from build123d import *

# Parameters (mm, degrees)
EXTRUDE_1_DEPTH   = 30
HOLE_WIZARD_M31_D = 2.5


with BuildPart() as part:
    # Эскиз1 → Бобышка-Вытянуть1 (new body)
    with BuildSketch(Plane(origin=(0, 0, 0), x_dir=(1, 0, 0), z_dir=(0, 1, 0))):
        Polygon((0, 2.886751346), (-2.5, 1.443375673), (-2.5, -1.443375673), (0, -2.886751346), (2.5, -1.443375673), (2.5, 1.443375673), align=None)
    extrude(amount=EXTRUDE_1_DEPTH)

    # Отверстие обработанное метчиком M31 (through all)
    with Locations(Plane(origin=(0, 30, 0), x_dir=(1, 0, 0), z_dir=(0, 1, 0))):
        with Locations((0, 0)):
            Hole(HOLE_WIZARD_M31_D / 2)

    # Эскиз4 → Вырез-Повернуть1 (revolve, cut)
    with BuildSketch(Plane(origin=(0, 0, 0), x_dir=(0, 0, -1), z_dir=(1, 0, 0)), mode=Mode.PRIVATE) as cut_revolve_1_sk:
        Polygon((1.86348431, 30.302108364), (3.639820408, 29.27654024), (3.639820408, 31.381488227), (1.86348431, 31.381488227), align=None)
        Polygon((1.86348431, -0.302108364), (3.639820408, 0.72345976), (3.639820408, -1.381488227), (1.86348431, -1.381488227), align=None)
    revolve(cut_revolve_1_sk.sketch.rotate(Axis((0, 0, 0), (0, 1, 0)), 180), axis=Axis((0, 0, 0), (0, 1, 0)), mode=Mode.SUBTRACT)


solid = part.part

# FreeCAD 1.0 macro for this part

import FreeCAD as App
import Part
import Sketcher
Q = App.Units.Quantity

doc = App.newDocument("Part")
body = doc.addObject("PartDesign::Body", "Body")

# Sketch on XZ plane
sketch1 = body.newObject("Sketcher::SketchObject", "Sketch")
sketch1.AttachmentSupport = (doc.getObject("XZ_Plane"), [""])
sketch1.MapMode = "FlatFace"
sketch1.addGeometry(Part.LineSegment(App.Vector(0, -2.9, 0), App.Vector(-2.5, -1.4, 0)), False)
sketch1.addGeometry(Part.LineSegment(App.Vector(-2.5, -1.4, 0), App.Vector(-2.5, 1.4, 0)), False)
sketch1.addGeometry(Part.LineSegment(App.Vector(-2.5, 1.4, 0), App.Vector(0, 2.9, 0)), False)
sketch1.addGeometry(Part.LineSegment(App.Vector(0, 2.9, 0), App.Vector(2.5, 1.4, 0)), False)
sketch1.addGeometry(Part.LineSegment(App.Vector(2.5, 1.4, 0), App.Vector(2.5, -1.4, 0)), False)
sketch1.addGeometry(Part.LineSegment(App.Vector(2.5, -1.4, 0), App.Vector(0, -2.9, 0)), False)
sketch1.addConstraint(Sketcher.Constraint("Coincident", 0, 2, 1, 1))
sketch1.addConstraint(Sketcher.Constraint("Coincident", 1, 2, 2, 1))
sketch1.addConstraint(Sketcher.Constraint("Coincident", 2, 2, 3, 1))
sketch1.addConstraint(Sketcher.Constraint("Coincident", 3, 2, 4, 1))
sketch1.addConstraint(Sketcher.Constraint("Coincident", 4, 2, 5, 1))
sketch1.addConstraint(Sketcher.Constraint("Coincident", 5, 2, 0, 1))
sketch1.addConstraint(Sketcher.Constraint("Vertical", 1))
sketch1.addConstraint(Sketcher.Constraint("Vertical", 4))
sketch1.addConstraint(Sketcher.Constraint("Symmetric", 0, 2, 3, 2, -1, 1))
sketch1.addConstraint(Sketcher.Constraint("Symmetric", 2, 2, 5, 2, -1, 1))
sketch1.addConstraint(Sketcher.Constraint("PointOnObject", 2, 2, -2))
sketch1.addConstraint(Sketcher.Constraint("Parallel", 2, 5))
sketch1.addConstraint(Sketcher.Constraint("Horizontal", 1, 2, 3, 2))
sketch1.addConstraint(Sketcher.Constraint("Angle", 0, Q("150 deg")))
sketch1.addConstraint(Sketcher.Constraint("DistanceX", 1, 2, 3, 2, 5.0))
sketch1.addConstraint(Sketcher.Constraint("DistanceY", 1, 1, 1, 2, 2.886751))
pad1 = body.newObject("PartDesign::Pad", "Pad")
pad1.Profile = sketch1
pad1.Length = 30
pad1.Reversed = True

# Sketch on XZ plane
sketch2 = body.newObject("Sketcher::SketchObject", "Sketch001")
sketch2.AttachmentSupport = (doc.getObject("XZ_Plane"), [""])
sketch2.MapMode = "FlatFace"
sketch2.AttachmentOffset = App.Placement(App.Vector(0, 0, -30), App.Rotation())
sketch2.addGeometry(Part.Circle(App.Vector(0, 0, 0), App.Vector(0, 0, 1), 1.2), False)
sketch2.addConstraint(Sketcher.Constraint("Coincident", 0, 3, -1, 1))
sketch2.addConstraint(Sketcher.Constraint("Diameter", 0, 2.5))
doc.recompute()
hole = body.newObject("PartDesign::Hole", "Hole")
hole.Profile = sketch2
hole.ThreadType = "None"
hole.Diameter = 2.5
hole.DepthType = "ThroughAll"
hole.Reversed = True

# Sketch on YZ plane
sketch3 = body.newObject("Sketcher::SketchObject", "Sketch002")
sketch3.AttachmentSupport = (doc.getObject("YZ_Plane"), [""])
sketch3.MapMode = "FlatFace"
sketch3.addGeometry(Part.LineSegment(App.Vector(30.3, -1.9, 0), App.Vector(29.3, -3.6, 0)), False)
sketch3.addGeometry(Part.LineSegment(App.Vector(29.3, -3.6, 0), App.Vector(31.4, -3.6, 0)), False)
sketch3.addGeometry(Part.LineSegment(App.Vector(31.4, -3.6, 0), App.Vector(31.4, -1.9, 0)), False)
sketch3.addGeometry(Part.LineSegment(App.Vector(31.4, -1.9, 0), App.Vector(30.3, -1.9, 0)), False)
sketch3.addGeometry(Part.LineSegment(App.Vector(0.7, -3.6, 0), App.Vector(-0.3, -1.9, 0)), False)
sketch3.addGeometry(Part.LineSegment(App.Vector(-0.3, -1.9, 0), App.Vector(-1.4, -1.9, 0)), False)
sketch3.addGeometry(Part.LineSegment(App.Vector(-1.4, -1.9, 0), App.Vector(-1.4, -3.6, 0)), False)
sketch3.addGeometry(Part.LineSegment(App.Vector(-1.4, -3.6, 0), App.Vector(0.7, -3.6, 0)), False)
sketch3.addConstraint(Sketcher.Constraint("Coincident", 0, 2, 1, 1))
sketch3.addConstraint(Sketcher.Constraint("Coincident", 1, 2, 2, 1))
sketch3.addConstraint(Sketcher.Constraint("Coincident", 2, 2, 3, 1))
sketch3.addConstraint(Sketcher.Constraint("Coincident", 3, 2, 0, 1))
sketch3.addConstraint(Sketcher.Constraint("Coincident", 4, 2, 5, 1))
sketch3.addConstraint(Sketcher.Constraint("Coincident", 5, 2, 6, 1))
sketch3.addConstraint(Sketcher.Constraint("Coincident", 6, 2, 7, 1))
sketch3.addConstraint(Sketcher.Constraint("Coincident", 7, 2, 4, 1))
sketch3.addConstraint(Sketcher.Constraint("Horizontal", 1))
sketch3.addConstraint(Sketcher.Constraint("Vertical", 2))
sketch3.addConstraint(Sketcher.Constraint("Horizontal", 3))
sketch3.addConstraint(Sketcher.Constraint("Horizontal", 5))
sketch3.addConstraint(Sketcher.Constraint("Vertical", 6))
sketch3.addConstraint(Sketcher.Constraint("Horizontal", 7))
sketch3.addConstraint(Sketcher.Constraint("Horizontal", 3, 2, 4, 2))
sketch3.addConstraint(Sketcher.Constraint("Horizontal", 1, 2, 6, 2))
sketch3.addConstraint(Sketcher.Constraint("Equal", 3, 5))
sketch3.addConstraint(Sketcher.Constraint("Equal", 1, 7))
sketch3.addConstraint(Sketcher.Constraint("Angle", 0, Q("-120 deg")))
sketch3.addConstraint(Sketcher.Constraint("DistanceX", 3, 2, 3, 1, 1.07938))
sketch3.addConstraint(Sketcher.Constraint("DistanceX", 1, 1, 1, 2, 2.104948))
sketch3.addConstraint(Sketcher.Constraint("DistanceX", -1, 1, 0, 2, 29.27654))
sketch3.addConstraint(Sketcher.Constraint("DistanceY", 0, 2, -1, 1, 3.63982))
sketch3.addConstraint(Sketcher.Constraint("DistanceX", 4, 2, -1, 1, 0.302108))
groove = body.newObject("PartDesign::Groove", "Groove")
groove.Profile = sketch3
groove.ReferenceAxis = (sketch3, ["H_Axis"])
groove.Angle = 360

doc.recompute()
